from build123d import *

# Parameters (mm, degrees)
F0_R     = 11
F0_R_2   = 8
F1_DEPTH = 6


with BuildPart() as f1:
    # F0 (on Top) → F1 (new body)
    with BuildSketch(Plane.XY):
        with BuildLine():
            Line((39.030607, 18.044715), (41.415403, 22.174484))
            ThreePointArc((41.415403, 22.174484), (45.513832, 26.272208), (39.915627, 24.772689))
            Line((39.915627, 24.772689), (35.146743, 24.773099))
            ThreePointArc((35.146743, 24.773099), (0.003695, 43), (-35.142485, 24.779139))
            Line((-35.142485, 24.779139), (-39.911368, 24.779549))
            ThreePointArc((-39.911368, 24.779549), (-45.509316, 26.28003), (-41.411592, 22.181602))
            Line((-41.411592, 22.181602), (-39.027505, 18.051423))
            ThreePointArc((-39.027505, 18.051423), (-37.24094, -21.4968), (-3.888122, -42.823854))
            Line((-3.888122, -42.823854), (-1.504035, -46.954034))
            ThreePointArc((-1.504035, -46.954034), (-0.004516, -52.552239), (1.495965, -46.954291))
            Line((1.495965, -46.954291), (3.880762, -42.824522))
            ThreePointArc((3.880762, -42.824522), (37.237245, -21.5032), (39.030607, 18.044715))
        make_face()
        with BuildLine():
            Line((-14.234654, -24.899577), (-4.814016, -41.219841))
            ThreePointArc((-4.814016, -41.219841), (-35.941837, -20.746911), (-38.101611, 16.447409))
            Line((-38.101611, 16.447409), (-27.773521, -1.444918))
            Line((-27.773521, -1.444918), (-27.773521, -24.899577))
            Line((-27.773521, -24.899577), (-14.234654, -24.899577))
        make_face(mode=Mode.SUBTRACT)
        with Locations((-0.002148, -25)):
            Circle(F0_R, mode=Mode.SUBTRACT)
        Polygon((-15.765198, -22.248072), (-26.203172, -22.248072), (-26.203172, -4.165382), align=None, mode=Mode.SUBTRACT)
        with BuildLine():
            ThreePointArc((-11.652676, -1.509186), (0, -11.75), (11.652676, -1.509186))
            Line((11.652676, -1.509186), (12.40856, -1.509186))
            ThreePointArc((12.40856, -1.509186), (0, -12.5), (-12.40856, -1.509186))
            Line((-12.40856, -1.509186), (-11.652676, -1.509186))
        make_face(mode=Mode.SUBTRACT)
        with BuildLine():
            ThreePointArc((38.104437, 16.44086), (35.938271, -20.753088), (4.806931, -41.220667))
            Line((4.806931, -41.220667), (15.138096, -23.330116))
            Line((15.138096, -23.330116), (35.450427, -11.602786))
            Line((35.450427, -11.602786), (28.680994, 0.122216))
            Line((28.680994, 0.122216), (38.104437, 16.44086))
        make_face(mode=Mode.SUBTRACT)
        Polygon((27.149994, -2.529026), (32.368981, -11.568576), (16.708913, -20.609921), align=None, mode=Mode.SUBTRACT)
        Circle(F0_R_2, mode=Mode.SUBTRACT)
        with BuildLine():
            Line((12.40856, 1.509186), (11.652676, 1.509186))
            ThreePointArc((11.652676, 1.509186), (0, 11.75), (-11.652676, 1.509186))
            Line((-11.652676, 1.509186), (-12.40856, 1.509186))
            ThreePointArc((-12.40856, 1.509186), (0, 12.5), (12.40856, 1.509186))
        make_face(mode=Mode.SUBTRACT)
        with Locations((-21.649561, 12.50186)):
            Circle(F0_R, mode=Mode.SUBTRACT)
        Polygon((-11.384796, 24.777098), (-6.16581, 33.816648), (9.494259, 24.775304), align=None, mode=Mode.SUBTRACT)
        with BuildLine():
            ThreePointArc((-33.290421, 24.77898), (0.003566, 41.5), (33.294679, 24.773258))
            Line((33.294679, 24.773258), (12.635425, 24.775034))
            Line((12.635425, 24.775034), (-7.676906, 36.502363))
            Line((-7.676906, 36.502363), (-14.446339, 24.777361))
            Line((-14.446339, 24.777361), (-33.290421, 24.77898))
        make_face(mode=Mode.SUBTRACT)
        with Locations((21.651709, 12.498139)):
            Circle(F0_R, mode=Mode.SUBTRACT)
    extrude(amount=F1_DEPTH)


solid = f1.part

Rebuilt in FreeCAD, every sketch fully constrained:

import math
import FreeCAD as App
import Part
import Sketcher
from FreeCAD import Vector
Q = App.Units.Quantity


def add_polygon(sketch, points):
    """Adds a closed chain of lines whose ends are joined by coincident constraints."""
    first, n = sketch.GeometryCount, len(points)
    for a, b in zip(points, points[1:] + points[:1]):
        sketch.addGeometry(Part.LineSegment(App.Vector(*a, 0), App.Vector(*b, 0)), False)
    for i in range(n):
        sketch.addConstraint(Sketcher.Constraint("Coincident", first + i, 2, first + (i + 1) % n, 1))

doc = App.newDocument("Part")
body = doc.addObject("PartDesign::Body", "Body")

sketch1 = doc.addObject("Sketcher::SketchObject", "Sketch")
body.addObject(sketch1)
sketch1.AttachmentSupport = (doc.XY_Plane, [""])
sketch1.MapMode = "FlatFace"
sketch1.addGeometry(Part.LineSegment(Vector(39.030607, 18.044715, 0), Vector(41.415403, 22.174484, 0)), False)
sketch1.addGeometry(Part.ArcOfCircle(Part.Circle(Vector(42.915627, 24.772431, 0), Vector(0, 0, 1), 3), math.radians(-120.00494), math.radians(179.995071)), False)
sketch1.addGeometry(Part.LineSegment(Vector(39.915627, 24.772689, 0), Vector(35.146743, 24.773099, 0)), False)
sketch1.addGeometry(Part.ArcOfCircle(Part.Circle(Vector(0, 0.000001, 0), Vector(0, 0, 1), 42.999999), math.radians(35.178004), math.radians(144.812149)), False)
sketch1.addGeometry(Part.LineSegment(Vector(-35.142485, 24.779139, 0), Vector(-39.911368, 24.779549, 0)), False)
sketch1.addGeometry(Part.ArcOfCircle(Part.Circle(Vector(-42.911368, 24.779808, 0), Vector(0, 0, 1), 3), math.radians(-0.004939), math.radians(299.995061)), False)
sketch1.addGeometry(Part.LineSegment(Vector(-41.411592, 22.181602, 0), Vector(-39.027505, 18.051423, 0)), False)
sketch1.addGeometry(Part.ArcOfCircle(Part.Circle(Vector(-0.000001, 0, 0), Vector(0, 0, 1), 42.999999), math.radians(155.178004), math.radians(264.812148)), False)
sketch1.addGeometry(Part.LineSegment(Vector(-3.888122, -42.823854, 0), Vector(-1.504035, -46.954034, 0)), False)
sketch1.addGeometry(Part.ArcOfCircle(Part.Circle(Vector(-0.004258, -49.552239, 0), Vector(0, 0, 1), 3), math.radians(119.99509), math.radians(419.995093)), False)
sketch1.addGeometry(Part.LineSegment(Vector(1.495965, -46.954291, 0), Vector(3.880762, -42.824522, 0)), False)
sketch1.addGeometry(Part.ArcOfCircle(Part.Circle(Vector(0, 0, 0), Vector(0, 0, 1), 43), math.radians(-84.821995), math.radians(24.812148)), False)
sketch1.addGeometry(Part.Circle(Vector(-0.002148, -25, 0), Vector(0, 0, 1), 11), False)
add_polygon(sketch1, [(-26.203172, -4.165382), (-15.765198, -22.248072), (-26.203172, -22.248072)])
sketch1.addGeometry(Part.LineSegment(Vector(-27.773521, -24.899577, 0), Vector(-14.234654, -24.899577, 0)), False)
sketch1.addGeometry(Part.LineSegment(Vector(-14.234654, -24.899577, 0), Vector(-4.814016, -41.219841, 0)), False)
sketch1.addGeometry(Part.ArcOfCircle(Part.Circle(Vector(0.000002, 0.000001, 0), Vector(0, 0, 1), 41.500002), math.radians(156.651484), math.radians(263.338669)), False)
sketch1.addGeometry(Part.LineSegment(Vector(-38.101611, 16.447409, 0), Vector(-27.773521, -1.444918, 0)), False)
sketch1.addGeometry(Part.LineSegment(Vector(-27.773521, -1.444918, 0), Vector(-27.773521, -24.899577, 0)), False)
sketch1.addGeometry(Part.LineSegment(Vector(-12.40856, -1.509186, 0), Vector(-11.652676, -1.509186, 0)), False)
sketch1.addGeometry(Part.ArcOfCircle(Part.Circle(Vector(0, 0, 0), Vector(0, 0, 1), 11.75), math.radians(-172.620466), math.radians(-7.379534)), False)
sketch1.addGeometry(Part.LineSegment(Vector(11.652676, -1.509186, 0), Vector(12.40856, -1.509186, 0)), False)
sketch1.addGeometry(Part.ArcOfCircle(Part.Circle(Vector(0, 0, 0), Vector(0, 0, 1), 12.5), math.radians(-173.065483), math.radians(-6.934517)), False)
sketch1.addGeometry(Part.Circle(Vector(0, 0, 0), Vector(0, 0, 1), 8), False)
sketch1.addGeometry(Part.LineSegment(Vector(28.680994, 0.122216, 0), Vector(38.104437, 16.44086, 0)), False)
sketch1.addGeometry(Part.ArcOfCircle(Part.Circle(Vector(0, 0, 0), Vector(0, 0, 1), 41.5), math.radians(-83.348519), math.radians(23.338671)), False)
sketch1.addGeometry(Part.LineSegment(Vector(4.806931, -41.220667, 0), Vector(15.138096, -23.330116, 0)), False)
sketch1.addGeometry(Part.LineSegment(Vector(15.138096, -23.330116, 0), Vector(35.450427, -11.602786, 0)), False)
sketch1.addGeometry(Part.LineSegment(Vector(35.450427, -11.602786, 0), Vector(28.680994, 0.122216, 0)), False)
add_polygon(sketch1, [(16.708913, -20.609921), (27.149994, -2.529026), (32.368981, -11.568576)])
sketch1.addGeometry(Part.Circle(Vector(-21.649561, 12.50186, 0), Vector(0, 0, 1), 11), False)
sketch1.addGeometry(Part.ArcOfCircle(Part.Circle(Vector(0, 0, 0), Vector(0, 0, 1), 12.5), math.radians(6.934517), math.radians(173.065483)), False)
sketch1.addGeometry(Part.LineSegment(Vector(12.40856, 1.509186, 0), Vector(11.652676, 1.509186, 0)), False)
sketch1.addGeometry(Part.ArcOfCircle(Part.Circle(Vector(0, 0, 0), Vector(0, 0, 1), 11.75), math.radians(7.379534), math.radians(172.620466)), False)
sketch1.addGeometry(Part.LineSegment(Vector(-11.652676, 1.509186, 0), Vector(-12.40856, 1.509186, 0)), False)
add_polygon(sketch1, [(9.494259, 24.775304), (-11.384796, 24.777098), (-6.16581, 33.816648)])
sketch1.addGeometry(Part.Circle(Vector(21.651709, 12.498139, 0), Vector(0, 0, 1), 11), False)
sketch1.addGeometry(Part.LineSegment(Vector(-14.446339, 24.777361, 0), Vector(-33.290421, 24.77898, 0)), False)
sketch1.addGeometry(Part.ArcOfCircle(Part.Circle(Vector(0, 0.000001, 0), Vector(0, 0, 1), 41.499999), math.radians(36.65148), math.radians(143.338673)), False)
sketch1.addGeometry(Part.LineSegment(Vector(33.294679, 24.773258, 0), Vector(12.635425, 24.775034, 0)), False)
sketch1.addGeometry(Part.LineSegment(Vector(12.635425, 24.775034, 0), Vector(-7.676906, 36.502363, 0)), False)
sketch1.addGeometry(Part.LineSegment(Vector(-7.676906, 36.502363, 0), Vector(-14.446339, 24.777361, 0)), False)
sketch1.addConstraint([
    Sketcher.Constraint("Coincident", 0, 2, 1, 1),
    Sketcher.Constraint("Coincident", 1, 2, 2, 1),
    Sketcher.Constraint("Coincident", 2, 2, 3, 1),
    Sketcher.Constraint("Coincident", 3, 2, 4, 1),
    Sketcher.Constraint("Coincident", 4, 2, 5, 1),
    Sketcher.Constraint("Coincident", 5, 2, 6, 1),
    Sketcher.Constraint("Coincident", 6, 2, 7, 1),
    Sketcher.Constraint("Coincident", 7, 2, 8, 1),
    Sketcher.Constraint("Coincident", 8, 2, 9, 1),
    Sketcher.Constraint("Coincident", 9, 2, 10, 1),
    Sketcher.Constraint("Coincident", 10, 2, 11, 1),
    Sketcher.Constraint("Coincident", 11, 2, 0, 1),
    Sketcher.Constraint("Coincident", 16, 2, 17, 1),
    Sketcher.Constraint("Coincident", 17, 2, 18, 2),
    Sketcher.Constraint("Coincident", 18, 1, 19, 1),
    Sketcher.Constraint("Coincident", 19, 2, 20, 1),
    Sketcher.Constraint("Coincident", 20, 2, 16, 1),
    Sketcher.Constraint("Coincident", 21, 2, 22, 1),
    Sketcher.Constraint("Coincident", 22, 2, 23, 1),
    Sketcher.Constraint("Coincident", 23, 2, 24, 2),
    Sketcher.Constraint("Coincident", 24, 1, 21, 1),
    Sketcher.Constraint("Coincident", 26, 2, 27, 2),
    Sketcher.Constraint("Coincident", 27, 1, 28, 1),
    Sketcher.Constraint("Coincident", 28, 2, 29, 1),
    Sketcher.Constraint("Coincident", 29, 2, 30, 1),
    Sketcher.Constraint("Coincident", 30, 2, 26, 1),
    Sketcher.Constraint("Coincident", 35, 1, 36, 1),
    Sketcher.Constraint("Coincident", 36, 2, 37, 1),
    Sketcher.Constraint("Coincident", 37, 2, 38, 1),
    Sketcher.Constraint("Coincident", 38, 2, 35, 2),
    Sketcher.Constraint("Coincident", 43, 2, 44, 2),
    Sketcher.Constraint("Coincident", 44, 1, 45, 1),
    Sketcher.Constraint("Coincident", 45, 2, 46, 1),
    Sketcher.Constraint("Coincident", 46, 2, 47, 1),
    Sketcher.Constraint("Coincident", 47, 2, 43, 1),
    Sketcher.Constraint("Horizontal", 14),
    Sketcher.Constraint("Vertical", 15),
    Sketcher.Constraint("Horizontal", 16),
    Sketcher.Constraint("Vertical", 20),
    Sketcher.Constraint("Horizontal", 21),
    Sketcher.Constraint("Horizontal", 23),
    Sketcher.Constraint("Horizontal", 36),
    Sketcher.Constraint("Horizontal", 38),
    Sketcher.Constraint("Coincident", 3, 3, -1, 1),
    Sketcher.Constraint("Coincident", 7, 3, -1, 1),
    Sketcher.Constraint("Coincident", 11, 3, -1, 1),
    Sketcher.Constraint("Coincident", 18, 3, -1, 1),
    Sketcher.Constraint("Coincident", 22, 3, -1, 1),
    Sketcher.Constraint("Coincident", 24, 3, -1, 1),
    Sketcher.Constraint("Coincident", 25, 3, -1, 1),
    Sketcher.Constraint("Coincident", 27, 3, -1, 1),
    Sketcher.Constraint("Coincident", 35, 3, -1, 1),
    Sketcher.Constraint("Coincident", 37, 3, -1, 1),
    Sketcher.Constraint("Coincident", 44, 3, -1, 1),
    Sketcher.Constraint("Equal", 1, 5),
    Sketcher.Constraint("Equal", 3, 7),
    Sketcher.Constraint("Equal", 5, 9),
    Sketcher.Constraint("Equal", 7, 11),
    Sketcher.Constraint("Equal", 18, 27),
    Sketcher.Constraint("Equal", 12, 34),
    Sketcher.Constraint("Equal", 24, 35),
    Sketcher.Constraint("Equal", 22, 37),
    Sketcher.Constraint("Equal", 34, 42),
    Sketcher.Constraint("Equal", 27, 44),
    Sketcher.Constraint("Parallel", 2, 4),
    Sketcher.Constraint("Parallel", 6, 8),
    Sketcher.Constraint("Parallel", 0, 10),
    Sketcher.Constraint("Parallel", 8, 13),
    Sketcher.Constraint("Parallel", 13, 17),
    Sketcher.Constraint("Parallel", 17, 19),
    Sketcher.Constraint("Parallel", 10, 26),
    Sketcher.Constraint("Parallel", 26, 28),
    Sketcher.Constraint("Perpendicular", 29, 30),
    Sketcher.Constraint("Parallel", 28, 31),
    Sketcher.Constraint("Parallel", 30, 32),
    Sketcher.Constraint("Perpendicular", 32, 33),
    Sketcher.Constraint("Parallel", 4, 39),
    Sketcher.Constraint("Perpendicular", 40, 41),
    Sketcher.Constraint("Parallel", 39, 43),
    Sketcher.Constraint("Parallel", 43, 45),
    Sketcher.Constraint("Parallel", 41, 46),
    Sketcher.Constraint("Perpendicular", 46, 47),
    Sketcher.Constraint("Horizontal", 21, 2, 22, 2),
    Sketcher.Constraint("Horizontal", 36, 2, 37, 2),
    Sketcher.Constraint("Vertical", 23, 2, 35, 1),
    Sketcher.Constraint("Equal", 0, 2),
    Sketcher.Constraint("Equal", 2, 4),
    Sketcher.Constraint("Equal", 4, 6),
    Sketcher.Constraint("Equal", 6, 8),
    Sketcher.Constraint("Equal", 8, 10),
    Sketcher.Constraint("Equal", 17, 26),
    Sketcher.Constraint("Equal", 19, 28),
    Sketcher.Constraint("Equal", 13, 31),
    Sketcher.Constraint("Equal", 31, 39),
    Sketcher.Constraint("Equal", 32, 40),
    Sketcher.Constraint("Equal", 26, 43),
    Sketcher.Constraint("Equal", 28, 45),
    Sketcher.Constraint("Equal", 29, 46),
    Sketcher.Constraint("Equal", 30, 47),
    Sketcher.Constraint("Diameter", 12, Q("22 mm")),
    Sketcher.Constraint("Diameter", 25, Q("16 mm")),
    Sketcher.Constraint("Radius", 1, Q("3 mm")),
    Sketcher.Constraint("Radius", 3, Q("42.999999 mm")),
    Sketcher.Constraint("Radius", 18, Q("41.500002 mm")),
    Sketcher.Constraint("Radius", 24, Q("12.5 mm")),
    Sketcher.Constraint("Angle", 29, Q("30 deg")),
    Sketcher.Constraint("Angle", 40, Q("60.000003 deg")),
    Sketcher.Constraint("Radius", 22, Q("11.75 mm")),
    Sketcher.Constraint("DistanceY", 12, 3, -1, 1, Q("25 mm")),
    Sketcher.Constraint("DistanceY", 15, 1, 15, 2, Q("18.08269 mm")),
    Sketcher.Constraint("DistanceY", 20, 2, 20, 1, Q("23.454659 mm")),
    Sketcher.Constraint("DistanceY", -1, 1, 2, 2, Q("24.773099 mm")),
    Sketcher.Constraint("Distance", 26, Q("18.844082 mm")),
    Sketcher.Constraint("Distance", 29, Q("23.45466 mm")),
    Sketcher.Constraint("Distance", 33, Q("18.082689 mm")),
    Sketcher.Constraint("DistanceX", 14, 2, 14, 1, Q("10.437974 mm")),
    Sketcher.Constraint("DistanceX", 16, 1, 16, 2, Q("13.538867 mm")),
    Sketcher.Constraint("DistanceY", -1, 1, 1, 3, Q("24.772431 mm")),
    Sketcher.Constraint("DistanceX", 5, 3, -1, 1, Q("42.911368 mm")),
    Sketcher.Constraint("DistanceY", 9, 3, -1, 1, Q("49.552239 mm")),
    Sketcher.Constraint("DistanceX", 12, 3, -1, 1, Q("0.002148 mm")),
    Sketcher.Constraint("DistanceX", 34, 3, -1, 1, Q("21.649561 mm")),
    Sketcher.Constraint("DistanceY", -1, 1, 34, 3, Q("12.50186 mm")),
    Sketcher.Constraint("DistanceX", -1, 1, 42, 3, Q("21.651709 mm")),
    Sketcher.Constraint("DistanceY", -1, 1, 42, 3, Q("12.498139 mm")),
    Sketcher.Constraint("DistanceY", -1, 1, 3, 2, Q("24.779139 mm")),
    Sketcher.Constraint("DistanceX", 7, 2, -1, 1, Q("3.888122 mm")),
    Sketcher.Constraint("DistanceX", 14, 2, -1, 1, Q("26.203172 mm")),
    Sketcher.Constraint("DistanceY", 17, 2, -1, 1, Q("41.219841 mm")),
    Sketcher.Constraint("DistanceX", -1, 1, 23, 2, Q("12.40856 mm")),
    Sketcher.Constraint("DistanceY", -1, 1, 26, 2, Q("16.44086 mm")),
    Sketcher.Constraint("DistanceX", -1, 1, 32, 2, Q("32.368981 mm")),
    Sketcher.Constraint("DistanceY", 33, 2, -1, 1, Q("20.609921 mm")),
    Sketcher.Constraint("DistanceX", 40, 2, -1, 1, Q("6.16581 mm")),
    Sketcher.Constraint("DistanceY", -1, 1, 5, 3, Q("24.779808 mm")),
    Sketcher.Constraint("DistanceY", 13, 2, -1, 1, Q("22.248072 mm")),
    Sketcher.Constraint("DistanceY", -1, 1, 39, 2, Q("24.777098 mm")),
])
pad1 = doc.addObject("PartDesign::Pad", "Pad")
body.addObject(pad1)
pad1.Profile = sketch1
pad1.Length = 6

doc.recompute()
